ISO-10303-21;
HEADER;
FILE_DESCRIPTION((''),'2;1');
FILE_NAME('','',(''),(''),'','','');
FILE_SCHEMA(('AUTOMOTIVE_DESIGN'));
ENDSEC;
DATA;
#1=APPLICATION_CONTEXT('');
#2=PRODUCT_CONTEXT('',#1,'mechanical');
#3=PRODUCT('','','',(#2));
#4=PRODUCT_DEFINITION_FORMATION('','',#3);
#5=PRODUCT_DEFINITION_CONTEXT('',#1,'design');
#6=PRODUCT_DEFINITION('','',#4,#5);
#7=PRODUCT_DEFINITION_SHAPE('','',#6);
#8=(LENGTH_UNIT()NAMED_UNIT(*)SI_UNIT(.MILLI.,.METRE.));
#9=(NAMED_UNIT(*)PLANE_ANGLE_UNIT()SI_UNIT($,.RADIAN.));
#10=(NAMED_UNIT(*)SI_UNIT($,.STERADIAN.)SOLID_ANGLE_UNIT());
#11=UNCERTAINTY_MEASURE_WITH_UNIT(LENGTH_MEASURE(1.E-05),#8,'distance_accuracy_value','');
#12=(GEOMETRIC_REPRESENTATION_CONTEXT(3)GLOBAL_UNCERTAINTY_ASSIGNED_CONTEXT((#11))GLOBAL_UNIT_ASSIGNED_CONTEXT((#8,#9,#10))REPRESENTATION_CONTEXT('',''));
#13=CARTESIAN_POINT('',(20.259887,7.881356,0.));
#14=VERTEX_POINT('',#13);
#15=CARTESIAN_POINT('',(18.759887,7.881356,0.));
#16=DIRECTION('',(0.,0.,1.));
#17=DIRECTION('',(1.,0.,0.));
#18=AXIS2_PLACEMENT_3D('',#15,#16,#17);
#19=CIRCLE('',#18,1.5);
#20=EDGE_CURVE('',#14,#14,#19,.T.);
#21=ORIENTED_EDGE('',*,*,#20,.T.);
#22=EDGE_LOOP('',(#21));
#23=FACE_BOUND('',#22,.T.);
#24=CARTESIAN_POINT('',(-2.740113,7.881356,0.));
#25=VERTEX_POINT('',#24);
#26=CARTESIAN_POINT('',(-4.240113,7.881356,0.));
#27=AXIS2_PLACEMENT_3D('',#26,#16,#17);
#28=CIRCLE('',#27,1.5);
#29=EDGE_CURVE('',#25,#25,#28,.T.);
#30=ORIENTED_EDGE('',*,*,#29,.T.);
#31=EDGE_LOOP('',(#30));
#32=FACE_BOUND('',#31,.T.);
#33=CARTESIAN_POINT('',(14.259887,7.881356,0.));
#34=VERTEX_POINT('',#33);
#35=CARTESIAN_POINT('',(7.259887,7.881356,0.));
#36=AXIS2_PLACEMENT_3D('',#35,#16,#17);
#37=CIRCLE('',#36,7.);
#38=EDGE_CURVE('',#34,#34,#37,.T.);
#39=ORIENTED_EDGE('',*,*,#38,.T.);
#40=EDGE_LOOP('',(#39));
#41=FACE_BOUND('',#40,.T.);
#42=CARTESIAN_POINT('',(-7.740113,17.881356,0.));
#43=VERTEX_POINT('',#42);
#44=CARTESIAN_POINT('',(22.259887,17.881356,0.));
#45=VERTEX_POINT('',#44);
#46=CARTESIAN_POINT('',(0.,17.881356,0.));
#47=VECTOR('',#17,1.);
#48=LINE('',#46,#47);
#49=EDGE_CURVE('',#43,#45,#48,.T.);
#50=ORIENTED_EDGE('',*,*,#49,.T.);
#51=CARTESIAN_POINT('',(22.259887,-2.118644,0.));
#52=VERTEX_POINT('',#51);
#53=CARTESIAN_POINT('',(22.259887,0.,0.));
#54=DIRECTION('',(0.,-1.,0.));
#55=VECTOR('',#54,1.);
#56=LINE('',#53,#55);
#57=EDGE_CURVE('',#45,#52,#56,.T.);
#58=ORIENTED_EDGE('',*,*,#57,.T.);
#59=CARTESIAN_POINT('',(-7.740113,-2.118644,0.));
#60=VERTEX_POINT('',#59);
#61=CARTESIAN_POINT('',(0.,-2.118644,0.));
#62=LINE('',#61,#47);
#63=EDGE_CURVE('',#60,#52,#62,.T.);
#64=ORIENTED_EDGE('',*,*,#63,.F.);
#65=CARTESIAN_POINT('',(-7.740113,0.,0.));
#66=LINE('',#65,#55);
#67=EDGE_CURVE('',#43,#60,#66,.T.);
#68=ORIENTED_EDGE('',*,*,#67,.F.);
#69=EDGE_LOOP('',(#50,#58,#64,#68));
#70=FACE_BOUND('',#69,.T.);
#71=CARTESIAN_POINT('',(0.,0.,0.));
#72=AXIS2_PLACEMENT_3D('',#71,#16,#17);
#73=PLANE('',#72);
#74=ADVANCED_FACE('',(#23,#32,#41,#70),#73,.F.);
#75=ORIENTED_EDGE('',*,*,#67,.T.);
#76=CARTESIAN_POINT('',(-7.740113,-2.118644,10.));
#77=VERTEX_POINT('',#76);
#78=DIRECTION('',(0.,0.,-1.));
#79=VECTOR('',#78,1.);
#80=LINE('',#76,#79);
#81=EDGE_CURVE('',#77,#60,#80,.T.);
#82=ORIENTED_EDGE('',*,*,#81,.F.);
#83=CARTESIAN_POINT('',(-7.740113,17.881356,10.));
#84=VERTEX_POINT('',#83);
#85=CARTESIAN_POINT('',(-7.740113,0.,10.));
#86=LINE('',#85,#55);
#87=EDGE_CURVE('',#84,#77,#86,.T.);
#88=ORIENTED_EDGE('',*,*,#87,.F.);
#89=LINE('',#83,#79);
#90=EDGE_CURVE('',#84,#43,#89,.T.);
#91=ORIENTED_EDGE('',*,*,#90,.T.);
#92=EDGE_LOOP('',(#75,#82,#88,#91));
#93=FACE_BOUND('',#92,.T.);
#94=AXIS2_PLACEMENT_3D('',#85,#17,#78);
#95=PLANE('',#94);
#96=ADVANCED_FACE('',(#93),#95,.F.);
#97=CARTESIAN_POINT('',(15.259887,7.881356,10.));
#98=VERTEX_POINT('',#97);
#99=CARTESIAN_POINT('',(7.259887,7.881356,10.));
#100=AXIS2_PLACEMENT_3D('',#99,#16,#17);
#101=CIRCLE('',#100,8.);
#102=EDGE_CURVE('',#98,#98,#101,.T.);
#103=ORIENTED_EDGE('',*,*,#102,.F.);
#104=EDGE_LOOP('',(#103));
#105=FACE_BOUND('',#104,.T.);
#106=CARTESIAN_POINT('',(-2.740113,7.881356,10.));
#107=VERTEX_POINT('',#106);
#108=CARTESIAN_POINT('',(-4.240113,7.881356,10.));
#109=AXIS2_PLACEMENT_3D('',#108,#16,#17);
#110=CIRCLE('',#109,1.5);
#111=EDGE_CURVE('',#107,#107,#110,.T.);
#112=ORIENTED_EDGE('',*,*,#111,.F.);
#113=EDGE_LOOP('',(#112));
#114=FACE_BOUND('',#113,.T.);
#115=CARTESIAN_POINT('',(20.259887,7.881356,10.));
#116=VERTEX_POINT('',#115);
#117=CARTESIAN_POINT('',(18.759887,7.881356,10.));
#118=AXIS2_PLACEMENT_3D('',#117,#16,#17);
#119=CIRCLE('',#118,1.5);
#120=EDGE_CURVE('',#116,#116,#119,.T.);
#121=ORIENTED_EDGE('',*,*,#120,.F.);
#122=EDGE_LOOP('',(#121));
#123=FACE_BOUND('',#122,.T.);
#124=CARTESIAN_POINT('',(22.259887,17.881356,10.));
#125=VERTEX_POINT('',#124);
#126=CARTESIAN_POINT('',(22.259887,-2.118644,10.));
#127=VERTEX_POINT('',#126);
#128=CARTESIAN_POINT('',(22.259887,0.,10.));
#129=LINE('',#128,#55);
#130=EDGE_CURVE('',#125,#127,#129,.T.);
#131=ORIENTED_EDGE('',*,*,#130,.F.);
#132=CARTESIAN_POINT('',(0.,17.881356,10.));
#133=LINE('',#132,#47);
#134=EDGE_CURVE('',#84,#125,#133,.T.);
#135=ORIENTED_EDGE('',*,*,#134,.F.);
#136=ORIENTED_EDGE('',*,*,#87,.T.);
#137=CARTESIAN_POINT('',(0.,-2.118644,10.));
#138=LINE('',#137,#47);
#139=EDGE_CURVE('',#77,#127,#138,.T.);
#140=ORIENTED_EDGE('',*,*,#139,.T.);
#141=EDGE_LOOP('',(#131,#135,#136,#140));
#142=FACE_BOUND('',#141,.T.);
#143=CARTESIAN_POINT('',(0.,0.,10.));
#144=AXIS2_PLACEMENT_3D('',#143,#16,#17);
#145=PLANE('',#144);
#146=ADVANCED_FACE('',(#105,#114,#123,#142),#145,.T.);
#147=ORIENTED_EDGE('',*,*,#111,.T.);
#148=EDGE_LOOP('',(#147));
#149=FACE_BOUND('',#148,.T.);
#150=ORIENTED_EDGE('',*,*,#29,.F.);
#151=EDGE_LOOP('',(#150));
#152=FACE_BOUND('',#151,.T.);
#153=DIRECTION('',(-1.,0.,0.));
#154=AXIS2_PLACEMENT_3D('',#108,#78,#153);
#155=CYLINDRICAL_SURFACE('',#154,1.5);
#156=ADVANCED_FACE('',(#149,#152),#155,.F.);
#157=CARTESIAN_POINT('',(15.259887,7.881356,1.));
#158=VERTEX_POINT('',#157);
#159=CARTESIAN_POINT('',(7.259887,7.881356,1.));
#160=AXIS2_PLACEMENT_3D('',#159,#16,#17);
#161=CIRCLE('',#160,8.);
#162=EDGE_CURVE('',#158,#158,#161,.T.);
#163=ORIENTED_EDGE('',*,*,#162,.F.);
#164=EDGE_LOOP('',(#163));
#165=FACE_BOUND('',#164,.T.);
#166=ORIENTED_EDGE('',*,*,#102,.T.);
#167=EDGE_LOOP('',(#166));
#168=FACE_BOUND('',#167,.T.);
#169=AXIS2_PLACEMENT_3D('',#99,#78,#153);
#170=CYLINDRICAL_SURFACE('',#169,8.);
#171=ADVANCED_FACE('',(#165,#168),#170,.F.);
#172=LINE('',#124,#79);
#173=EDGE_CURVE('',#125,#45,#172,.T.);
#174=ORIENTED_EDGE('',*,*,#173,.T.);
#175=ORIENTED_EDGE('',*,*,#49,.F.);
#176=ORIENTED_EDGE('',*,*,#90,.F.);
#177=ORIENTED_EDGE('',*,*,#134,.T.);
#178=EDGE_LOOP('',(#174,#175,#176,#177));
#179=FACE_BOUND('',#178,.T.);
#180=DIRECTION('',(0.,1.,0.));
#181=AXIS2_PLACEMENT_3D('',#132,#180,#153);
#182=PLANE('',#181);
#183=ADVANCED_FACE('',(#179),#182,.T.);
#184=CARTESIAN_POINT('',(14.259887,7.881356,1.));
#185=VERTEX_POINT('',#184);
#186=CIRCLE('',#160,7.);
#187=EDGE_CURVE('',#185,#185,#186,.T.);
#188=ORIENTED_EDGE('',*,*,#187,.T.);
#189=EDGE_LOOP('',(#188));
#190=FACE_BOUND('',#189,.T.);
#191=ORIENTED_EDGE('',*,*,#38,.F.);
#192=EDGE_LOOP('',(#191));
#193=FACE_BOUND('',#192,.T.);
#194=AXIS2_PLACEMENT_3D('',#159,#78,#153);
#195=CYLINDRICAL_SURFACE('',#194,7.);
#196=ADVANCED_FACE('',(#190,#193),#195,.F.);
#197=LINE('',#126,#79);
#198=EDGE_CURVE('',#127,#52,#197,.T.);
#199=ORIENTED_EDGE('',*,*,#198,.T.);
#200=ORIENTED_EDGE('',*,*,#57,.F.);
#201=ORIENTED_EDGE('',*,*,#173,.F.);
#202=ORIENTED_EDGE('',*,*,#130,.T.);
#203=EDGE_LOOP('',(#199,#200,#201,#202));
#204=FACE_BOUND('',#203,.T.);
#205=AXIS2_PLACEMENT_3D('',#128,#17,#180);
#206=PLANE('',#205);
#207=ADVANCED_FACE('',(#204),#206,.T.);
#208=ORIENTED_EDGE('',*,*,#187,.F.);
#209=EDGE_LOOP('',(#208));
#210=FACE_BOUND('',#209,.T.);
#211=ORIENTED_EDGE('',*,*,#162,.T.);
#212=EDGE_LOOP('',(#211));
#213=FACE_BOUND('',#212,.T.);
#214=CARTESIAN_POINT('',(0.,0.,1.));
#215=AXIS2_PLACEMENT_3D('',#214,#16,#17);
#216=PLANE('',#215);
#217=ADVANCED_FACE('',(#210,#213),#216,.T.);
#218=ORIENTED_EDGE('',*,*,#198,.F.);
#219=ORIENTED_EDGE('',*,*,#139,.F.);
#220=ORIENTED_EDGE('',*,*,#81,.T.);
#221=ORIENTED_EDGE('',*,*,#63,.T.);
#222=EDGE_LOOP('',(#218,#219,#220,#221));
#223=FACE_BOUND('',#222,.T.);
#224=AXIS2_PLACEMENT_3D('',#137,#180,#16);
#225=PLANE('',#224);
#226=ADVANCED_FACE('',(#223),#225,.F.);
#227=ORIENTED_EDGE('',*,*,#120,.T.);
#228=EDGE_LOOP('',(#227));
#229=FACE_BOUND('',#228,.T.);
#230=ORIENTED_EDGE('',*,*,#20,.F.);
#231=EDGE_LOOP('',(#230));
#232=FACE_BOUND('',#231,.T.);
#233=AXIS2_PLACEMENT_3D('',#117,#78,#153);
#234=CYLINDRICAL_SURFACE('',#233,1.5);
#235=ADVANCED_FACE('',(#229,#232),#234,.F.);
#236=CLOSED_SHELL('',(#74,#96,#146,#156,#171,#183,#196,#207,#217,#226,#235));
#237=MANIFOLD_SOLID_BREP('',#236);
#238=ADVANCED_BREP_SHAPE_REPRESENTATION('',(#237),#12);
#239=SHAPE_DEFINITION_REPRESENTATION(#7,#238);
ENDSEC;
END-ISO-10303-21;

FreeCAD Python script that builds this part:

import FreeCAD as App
import Part
import Sketcher
from FreeCAD import Vector


def add_polygon(sketch, points):
    """Adds a closed chain of lines whose ends are joined by coincident constraints."""
    first, n = sketch.GeometryCount, len(points)
    for a, b in zip(points, points[1:] + points[:1]):
        sketch.addGeometry(Part.LineSegment(App.Vector(*a, 0), App.Vector(*b, 0)), False)
    for i in range(n):
        sketch.addConstraint(Sketcher.Constraint("Coincident", first + i, 2, first + (i + 1) % n, 1))

doc = App.newDocument("Part")
body = doc.addObject("PartDesign::Body", "Body")

# Sketch on XY plane
sketch1 = doc.addObject("Sketcher::SketchObject", "Sketch")
body.addObject(sketch1)
sketch1.AttachmentSupport = (doc.XY_Plane, [""])
sketch1.MapMode = "FlatFace"
add_polygon(sketch1, [(-7.7, 17.9), (-7.7, -2.1), (22.3, -2.1), (22.3, 17.9)])  # lines 0-3
sketch1.addGeometry(Part.Circle(Vector(-4.2, 7.9, 0), Vector(0, 0, 1), 1.5), False)  # 4
sketch1.addGeometry(Part.Circle(Vector(7.3, 7.9, 0), Vector(0, 0, 1), 8), False)  # 5
sketch1.addGeometry(Part.Circle(Vector(18.8, 7.9, 0), Vector(0, 0, 1), 1.5), False)  # 6
sketch1.addConstraint([
    Sketcher.Constraint("Vertical", 0),
    Sketcher.Constraint("Horizontal", 1),
    Sketcher.Constraint("Vertical", 2),
    Sketcher.Constraint("Horizontal", 3),
    Sketcher.Constraint("Equal", 4, 6),
    Sketcher.Constraint("Horizontal", 4, 3, 5, 3),
    Sketcher.Constraint("Horizontal", 5, 3, 6, 3),
    Sketcher.Constraint("Diameter", 4, 3.0),
    Sketcher.Constraint("Diameter", 5, 16.0),
    Sketcher.Constraint("DistanceX", 1, 1, 1, 2, 30.0),
    Sketcher.Constraint("DistanceY", 0, 2, 0, 1, 20.0),
    Sketcher.Constraint("DistanceX", 4, 3, 6, 3, 23.0),
    Sketcher.Constraint("DistanceY", 0, 2, 4, 3, 10.0),
    Sketcher.Constraint("DistanceX", 0, 2, 5, 3, 15.0),
    Sketcher.Constraint("DistanceX", 4, 3, 5, 3, 11.5),
    Sketcher.Constraint("DistanceX", 4, 3, -1, 1, 4.240113),
    Sketcher.Constraint("DistanceY", -1, 1, 4, 3, 7.881356),
])
pad1 = doc.addObject("PartDesign::Pad", "Pad")
body.addObject(pad1)
pad1.Profile = sketch1
pad1.Length = 10

# Sketch on XY plane
sketch2 = doc.addObject("Sketcher::SketchObject", "Sketch001")
body.addObject(sketch2)
sketch2.AttachmentSupport = (doc.XY_Plane, [""])
sketch2.MapMode = "FlatFace"
sketch2.addGeometry([
    Part.Circle(Vector(7, 8, 0), Vector(0, 0, 1), 8),
    Part.Circle(Vector(7, 8, 0), Vector(0, 0, 1), 7),
], False)
sketch2.addConstraint([
    Sketcher.Constraint("Coincident", 1, 3, 0, 3),
    Sketcher.Constraint("Diameter", 0, 16.0),
    Sketcher.Constraint("Diameter", 1, 14.0),
    Sketcher.Constraint("DistanceX", -1, 1, 0, 3, 7.259887),
    Sketcher.Constraint("DistanceY", -1, 1, 0, 3, 7.881356),
])
pad2 = doc.addObject("PartDesign::Pad", "Pad001")
body.addObject(pad2)
pad2.Profile = sketch2
pad2.Length = 1

doc.recompute()
